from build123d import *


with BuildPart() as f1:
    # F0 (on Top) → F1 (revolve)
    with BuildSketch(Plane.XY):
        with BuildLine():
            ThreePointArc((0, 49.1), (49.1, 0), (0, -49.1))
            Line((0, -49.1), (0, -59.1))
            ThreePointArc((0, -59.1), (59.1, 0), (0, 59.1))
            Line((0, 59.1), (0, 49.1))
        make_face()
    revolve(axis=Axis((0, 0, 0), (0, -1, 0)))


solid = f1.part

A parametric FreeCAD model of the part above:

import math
import FreeCAD as App
import Part
import Sketcher
from FreeCAD import Vector
Q = App.Units.Quantity

doc = App.newDocument("Part")
body = doc.addObject("PartDesign::Body", "Body")

# Sketch on XY plane
sketch1 = body.newObject("Sketcher::SketchObject", "Sketch")
sketch1.AttachmentSupport = (doc.getObject("XY_Plane"), [""])
sketch1.MapMode = "FlatFace"
sketch1.addGeometry([
    Part.ArcOfCircle(Part.Circle(Vector(0, 0, 0), Vector(0, 0, 1), 49.1), math.radians(-90), math.radians(90)),
    Part.LineSegment(Vector(0, -49.1, 0), Vector(0, -59.1, 0)),
    Part.ArcOfCircle(Part.Circle(Vector(0, 0, 0), Vector(0, 0, 1), 59.1), math.radians(-90), math.radians(90)),
    Part.LineSegment(Vector(0, 59.1, 0), Vector(0, 49.1, 0)),
], False)
sketch1.addConstraint([
    Sketcher.Constraint("Coincident", 0, 1, 1, 1),
    Sketcher.Constraint("Coincident", 1, 2, 2, 1),
    Sketcher.Constraint("Coincident", 2, 2, 3, 1),
    Sketcher.Constraint("Coincident", 3, 2, 0, 2),
    Sketcher.Constraint("Vertical", 1),
    Sketcher.Constraint("Vertical", 3),
    Sketcher.Constraint("Coincident", 0, 3, -1, 1),
    Sketcher.Constraint("Coincident", 2, 3, -1, 1),
    Sketcher.Constraint("PointOnObject", 0, 1, -2),
    Sketcher.Constraint("PointOnObject", 2, 2, -2),
    Sketcher.Constraint("Radius", 0, Q("49.1 mm")),
    Sketcher.Constraint("Radius", 2, Q("59.1 mm")),
])
revolution = body.newObject("PartDesign::Revolution", "Revolution")
revolution.Profile = sketch1
revolution.ReferenceAxis = (sketch1, ["V_Axis"])
revolution.Angle = 360

doc.recompute()
